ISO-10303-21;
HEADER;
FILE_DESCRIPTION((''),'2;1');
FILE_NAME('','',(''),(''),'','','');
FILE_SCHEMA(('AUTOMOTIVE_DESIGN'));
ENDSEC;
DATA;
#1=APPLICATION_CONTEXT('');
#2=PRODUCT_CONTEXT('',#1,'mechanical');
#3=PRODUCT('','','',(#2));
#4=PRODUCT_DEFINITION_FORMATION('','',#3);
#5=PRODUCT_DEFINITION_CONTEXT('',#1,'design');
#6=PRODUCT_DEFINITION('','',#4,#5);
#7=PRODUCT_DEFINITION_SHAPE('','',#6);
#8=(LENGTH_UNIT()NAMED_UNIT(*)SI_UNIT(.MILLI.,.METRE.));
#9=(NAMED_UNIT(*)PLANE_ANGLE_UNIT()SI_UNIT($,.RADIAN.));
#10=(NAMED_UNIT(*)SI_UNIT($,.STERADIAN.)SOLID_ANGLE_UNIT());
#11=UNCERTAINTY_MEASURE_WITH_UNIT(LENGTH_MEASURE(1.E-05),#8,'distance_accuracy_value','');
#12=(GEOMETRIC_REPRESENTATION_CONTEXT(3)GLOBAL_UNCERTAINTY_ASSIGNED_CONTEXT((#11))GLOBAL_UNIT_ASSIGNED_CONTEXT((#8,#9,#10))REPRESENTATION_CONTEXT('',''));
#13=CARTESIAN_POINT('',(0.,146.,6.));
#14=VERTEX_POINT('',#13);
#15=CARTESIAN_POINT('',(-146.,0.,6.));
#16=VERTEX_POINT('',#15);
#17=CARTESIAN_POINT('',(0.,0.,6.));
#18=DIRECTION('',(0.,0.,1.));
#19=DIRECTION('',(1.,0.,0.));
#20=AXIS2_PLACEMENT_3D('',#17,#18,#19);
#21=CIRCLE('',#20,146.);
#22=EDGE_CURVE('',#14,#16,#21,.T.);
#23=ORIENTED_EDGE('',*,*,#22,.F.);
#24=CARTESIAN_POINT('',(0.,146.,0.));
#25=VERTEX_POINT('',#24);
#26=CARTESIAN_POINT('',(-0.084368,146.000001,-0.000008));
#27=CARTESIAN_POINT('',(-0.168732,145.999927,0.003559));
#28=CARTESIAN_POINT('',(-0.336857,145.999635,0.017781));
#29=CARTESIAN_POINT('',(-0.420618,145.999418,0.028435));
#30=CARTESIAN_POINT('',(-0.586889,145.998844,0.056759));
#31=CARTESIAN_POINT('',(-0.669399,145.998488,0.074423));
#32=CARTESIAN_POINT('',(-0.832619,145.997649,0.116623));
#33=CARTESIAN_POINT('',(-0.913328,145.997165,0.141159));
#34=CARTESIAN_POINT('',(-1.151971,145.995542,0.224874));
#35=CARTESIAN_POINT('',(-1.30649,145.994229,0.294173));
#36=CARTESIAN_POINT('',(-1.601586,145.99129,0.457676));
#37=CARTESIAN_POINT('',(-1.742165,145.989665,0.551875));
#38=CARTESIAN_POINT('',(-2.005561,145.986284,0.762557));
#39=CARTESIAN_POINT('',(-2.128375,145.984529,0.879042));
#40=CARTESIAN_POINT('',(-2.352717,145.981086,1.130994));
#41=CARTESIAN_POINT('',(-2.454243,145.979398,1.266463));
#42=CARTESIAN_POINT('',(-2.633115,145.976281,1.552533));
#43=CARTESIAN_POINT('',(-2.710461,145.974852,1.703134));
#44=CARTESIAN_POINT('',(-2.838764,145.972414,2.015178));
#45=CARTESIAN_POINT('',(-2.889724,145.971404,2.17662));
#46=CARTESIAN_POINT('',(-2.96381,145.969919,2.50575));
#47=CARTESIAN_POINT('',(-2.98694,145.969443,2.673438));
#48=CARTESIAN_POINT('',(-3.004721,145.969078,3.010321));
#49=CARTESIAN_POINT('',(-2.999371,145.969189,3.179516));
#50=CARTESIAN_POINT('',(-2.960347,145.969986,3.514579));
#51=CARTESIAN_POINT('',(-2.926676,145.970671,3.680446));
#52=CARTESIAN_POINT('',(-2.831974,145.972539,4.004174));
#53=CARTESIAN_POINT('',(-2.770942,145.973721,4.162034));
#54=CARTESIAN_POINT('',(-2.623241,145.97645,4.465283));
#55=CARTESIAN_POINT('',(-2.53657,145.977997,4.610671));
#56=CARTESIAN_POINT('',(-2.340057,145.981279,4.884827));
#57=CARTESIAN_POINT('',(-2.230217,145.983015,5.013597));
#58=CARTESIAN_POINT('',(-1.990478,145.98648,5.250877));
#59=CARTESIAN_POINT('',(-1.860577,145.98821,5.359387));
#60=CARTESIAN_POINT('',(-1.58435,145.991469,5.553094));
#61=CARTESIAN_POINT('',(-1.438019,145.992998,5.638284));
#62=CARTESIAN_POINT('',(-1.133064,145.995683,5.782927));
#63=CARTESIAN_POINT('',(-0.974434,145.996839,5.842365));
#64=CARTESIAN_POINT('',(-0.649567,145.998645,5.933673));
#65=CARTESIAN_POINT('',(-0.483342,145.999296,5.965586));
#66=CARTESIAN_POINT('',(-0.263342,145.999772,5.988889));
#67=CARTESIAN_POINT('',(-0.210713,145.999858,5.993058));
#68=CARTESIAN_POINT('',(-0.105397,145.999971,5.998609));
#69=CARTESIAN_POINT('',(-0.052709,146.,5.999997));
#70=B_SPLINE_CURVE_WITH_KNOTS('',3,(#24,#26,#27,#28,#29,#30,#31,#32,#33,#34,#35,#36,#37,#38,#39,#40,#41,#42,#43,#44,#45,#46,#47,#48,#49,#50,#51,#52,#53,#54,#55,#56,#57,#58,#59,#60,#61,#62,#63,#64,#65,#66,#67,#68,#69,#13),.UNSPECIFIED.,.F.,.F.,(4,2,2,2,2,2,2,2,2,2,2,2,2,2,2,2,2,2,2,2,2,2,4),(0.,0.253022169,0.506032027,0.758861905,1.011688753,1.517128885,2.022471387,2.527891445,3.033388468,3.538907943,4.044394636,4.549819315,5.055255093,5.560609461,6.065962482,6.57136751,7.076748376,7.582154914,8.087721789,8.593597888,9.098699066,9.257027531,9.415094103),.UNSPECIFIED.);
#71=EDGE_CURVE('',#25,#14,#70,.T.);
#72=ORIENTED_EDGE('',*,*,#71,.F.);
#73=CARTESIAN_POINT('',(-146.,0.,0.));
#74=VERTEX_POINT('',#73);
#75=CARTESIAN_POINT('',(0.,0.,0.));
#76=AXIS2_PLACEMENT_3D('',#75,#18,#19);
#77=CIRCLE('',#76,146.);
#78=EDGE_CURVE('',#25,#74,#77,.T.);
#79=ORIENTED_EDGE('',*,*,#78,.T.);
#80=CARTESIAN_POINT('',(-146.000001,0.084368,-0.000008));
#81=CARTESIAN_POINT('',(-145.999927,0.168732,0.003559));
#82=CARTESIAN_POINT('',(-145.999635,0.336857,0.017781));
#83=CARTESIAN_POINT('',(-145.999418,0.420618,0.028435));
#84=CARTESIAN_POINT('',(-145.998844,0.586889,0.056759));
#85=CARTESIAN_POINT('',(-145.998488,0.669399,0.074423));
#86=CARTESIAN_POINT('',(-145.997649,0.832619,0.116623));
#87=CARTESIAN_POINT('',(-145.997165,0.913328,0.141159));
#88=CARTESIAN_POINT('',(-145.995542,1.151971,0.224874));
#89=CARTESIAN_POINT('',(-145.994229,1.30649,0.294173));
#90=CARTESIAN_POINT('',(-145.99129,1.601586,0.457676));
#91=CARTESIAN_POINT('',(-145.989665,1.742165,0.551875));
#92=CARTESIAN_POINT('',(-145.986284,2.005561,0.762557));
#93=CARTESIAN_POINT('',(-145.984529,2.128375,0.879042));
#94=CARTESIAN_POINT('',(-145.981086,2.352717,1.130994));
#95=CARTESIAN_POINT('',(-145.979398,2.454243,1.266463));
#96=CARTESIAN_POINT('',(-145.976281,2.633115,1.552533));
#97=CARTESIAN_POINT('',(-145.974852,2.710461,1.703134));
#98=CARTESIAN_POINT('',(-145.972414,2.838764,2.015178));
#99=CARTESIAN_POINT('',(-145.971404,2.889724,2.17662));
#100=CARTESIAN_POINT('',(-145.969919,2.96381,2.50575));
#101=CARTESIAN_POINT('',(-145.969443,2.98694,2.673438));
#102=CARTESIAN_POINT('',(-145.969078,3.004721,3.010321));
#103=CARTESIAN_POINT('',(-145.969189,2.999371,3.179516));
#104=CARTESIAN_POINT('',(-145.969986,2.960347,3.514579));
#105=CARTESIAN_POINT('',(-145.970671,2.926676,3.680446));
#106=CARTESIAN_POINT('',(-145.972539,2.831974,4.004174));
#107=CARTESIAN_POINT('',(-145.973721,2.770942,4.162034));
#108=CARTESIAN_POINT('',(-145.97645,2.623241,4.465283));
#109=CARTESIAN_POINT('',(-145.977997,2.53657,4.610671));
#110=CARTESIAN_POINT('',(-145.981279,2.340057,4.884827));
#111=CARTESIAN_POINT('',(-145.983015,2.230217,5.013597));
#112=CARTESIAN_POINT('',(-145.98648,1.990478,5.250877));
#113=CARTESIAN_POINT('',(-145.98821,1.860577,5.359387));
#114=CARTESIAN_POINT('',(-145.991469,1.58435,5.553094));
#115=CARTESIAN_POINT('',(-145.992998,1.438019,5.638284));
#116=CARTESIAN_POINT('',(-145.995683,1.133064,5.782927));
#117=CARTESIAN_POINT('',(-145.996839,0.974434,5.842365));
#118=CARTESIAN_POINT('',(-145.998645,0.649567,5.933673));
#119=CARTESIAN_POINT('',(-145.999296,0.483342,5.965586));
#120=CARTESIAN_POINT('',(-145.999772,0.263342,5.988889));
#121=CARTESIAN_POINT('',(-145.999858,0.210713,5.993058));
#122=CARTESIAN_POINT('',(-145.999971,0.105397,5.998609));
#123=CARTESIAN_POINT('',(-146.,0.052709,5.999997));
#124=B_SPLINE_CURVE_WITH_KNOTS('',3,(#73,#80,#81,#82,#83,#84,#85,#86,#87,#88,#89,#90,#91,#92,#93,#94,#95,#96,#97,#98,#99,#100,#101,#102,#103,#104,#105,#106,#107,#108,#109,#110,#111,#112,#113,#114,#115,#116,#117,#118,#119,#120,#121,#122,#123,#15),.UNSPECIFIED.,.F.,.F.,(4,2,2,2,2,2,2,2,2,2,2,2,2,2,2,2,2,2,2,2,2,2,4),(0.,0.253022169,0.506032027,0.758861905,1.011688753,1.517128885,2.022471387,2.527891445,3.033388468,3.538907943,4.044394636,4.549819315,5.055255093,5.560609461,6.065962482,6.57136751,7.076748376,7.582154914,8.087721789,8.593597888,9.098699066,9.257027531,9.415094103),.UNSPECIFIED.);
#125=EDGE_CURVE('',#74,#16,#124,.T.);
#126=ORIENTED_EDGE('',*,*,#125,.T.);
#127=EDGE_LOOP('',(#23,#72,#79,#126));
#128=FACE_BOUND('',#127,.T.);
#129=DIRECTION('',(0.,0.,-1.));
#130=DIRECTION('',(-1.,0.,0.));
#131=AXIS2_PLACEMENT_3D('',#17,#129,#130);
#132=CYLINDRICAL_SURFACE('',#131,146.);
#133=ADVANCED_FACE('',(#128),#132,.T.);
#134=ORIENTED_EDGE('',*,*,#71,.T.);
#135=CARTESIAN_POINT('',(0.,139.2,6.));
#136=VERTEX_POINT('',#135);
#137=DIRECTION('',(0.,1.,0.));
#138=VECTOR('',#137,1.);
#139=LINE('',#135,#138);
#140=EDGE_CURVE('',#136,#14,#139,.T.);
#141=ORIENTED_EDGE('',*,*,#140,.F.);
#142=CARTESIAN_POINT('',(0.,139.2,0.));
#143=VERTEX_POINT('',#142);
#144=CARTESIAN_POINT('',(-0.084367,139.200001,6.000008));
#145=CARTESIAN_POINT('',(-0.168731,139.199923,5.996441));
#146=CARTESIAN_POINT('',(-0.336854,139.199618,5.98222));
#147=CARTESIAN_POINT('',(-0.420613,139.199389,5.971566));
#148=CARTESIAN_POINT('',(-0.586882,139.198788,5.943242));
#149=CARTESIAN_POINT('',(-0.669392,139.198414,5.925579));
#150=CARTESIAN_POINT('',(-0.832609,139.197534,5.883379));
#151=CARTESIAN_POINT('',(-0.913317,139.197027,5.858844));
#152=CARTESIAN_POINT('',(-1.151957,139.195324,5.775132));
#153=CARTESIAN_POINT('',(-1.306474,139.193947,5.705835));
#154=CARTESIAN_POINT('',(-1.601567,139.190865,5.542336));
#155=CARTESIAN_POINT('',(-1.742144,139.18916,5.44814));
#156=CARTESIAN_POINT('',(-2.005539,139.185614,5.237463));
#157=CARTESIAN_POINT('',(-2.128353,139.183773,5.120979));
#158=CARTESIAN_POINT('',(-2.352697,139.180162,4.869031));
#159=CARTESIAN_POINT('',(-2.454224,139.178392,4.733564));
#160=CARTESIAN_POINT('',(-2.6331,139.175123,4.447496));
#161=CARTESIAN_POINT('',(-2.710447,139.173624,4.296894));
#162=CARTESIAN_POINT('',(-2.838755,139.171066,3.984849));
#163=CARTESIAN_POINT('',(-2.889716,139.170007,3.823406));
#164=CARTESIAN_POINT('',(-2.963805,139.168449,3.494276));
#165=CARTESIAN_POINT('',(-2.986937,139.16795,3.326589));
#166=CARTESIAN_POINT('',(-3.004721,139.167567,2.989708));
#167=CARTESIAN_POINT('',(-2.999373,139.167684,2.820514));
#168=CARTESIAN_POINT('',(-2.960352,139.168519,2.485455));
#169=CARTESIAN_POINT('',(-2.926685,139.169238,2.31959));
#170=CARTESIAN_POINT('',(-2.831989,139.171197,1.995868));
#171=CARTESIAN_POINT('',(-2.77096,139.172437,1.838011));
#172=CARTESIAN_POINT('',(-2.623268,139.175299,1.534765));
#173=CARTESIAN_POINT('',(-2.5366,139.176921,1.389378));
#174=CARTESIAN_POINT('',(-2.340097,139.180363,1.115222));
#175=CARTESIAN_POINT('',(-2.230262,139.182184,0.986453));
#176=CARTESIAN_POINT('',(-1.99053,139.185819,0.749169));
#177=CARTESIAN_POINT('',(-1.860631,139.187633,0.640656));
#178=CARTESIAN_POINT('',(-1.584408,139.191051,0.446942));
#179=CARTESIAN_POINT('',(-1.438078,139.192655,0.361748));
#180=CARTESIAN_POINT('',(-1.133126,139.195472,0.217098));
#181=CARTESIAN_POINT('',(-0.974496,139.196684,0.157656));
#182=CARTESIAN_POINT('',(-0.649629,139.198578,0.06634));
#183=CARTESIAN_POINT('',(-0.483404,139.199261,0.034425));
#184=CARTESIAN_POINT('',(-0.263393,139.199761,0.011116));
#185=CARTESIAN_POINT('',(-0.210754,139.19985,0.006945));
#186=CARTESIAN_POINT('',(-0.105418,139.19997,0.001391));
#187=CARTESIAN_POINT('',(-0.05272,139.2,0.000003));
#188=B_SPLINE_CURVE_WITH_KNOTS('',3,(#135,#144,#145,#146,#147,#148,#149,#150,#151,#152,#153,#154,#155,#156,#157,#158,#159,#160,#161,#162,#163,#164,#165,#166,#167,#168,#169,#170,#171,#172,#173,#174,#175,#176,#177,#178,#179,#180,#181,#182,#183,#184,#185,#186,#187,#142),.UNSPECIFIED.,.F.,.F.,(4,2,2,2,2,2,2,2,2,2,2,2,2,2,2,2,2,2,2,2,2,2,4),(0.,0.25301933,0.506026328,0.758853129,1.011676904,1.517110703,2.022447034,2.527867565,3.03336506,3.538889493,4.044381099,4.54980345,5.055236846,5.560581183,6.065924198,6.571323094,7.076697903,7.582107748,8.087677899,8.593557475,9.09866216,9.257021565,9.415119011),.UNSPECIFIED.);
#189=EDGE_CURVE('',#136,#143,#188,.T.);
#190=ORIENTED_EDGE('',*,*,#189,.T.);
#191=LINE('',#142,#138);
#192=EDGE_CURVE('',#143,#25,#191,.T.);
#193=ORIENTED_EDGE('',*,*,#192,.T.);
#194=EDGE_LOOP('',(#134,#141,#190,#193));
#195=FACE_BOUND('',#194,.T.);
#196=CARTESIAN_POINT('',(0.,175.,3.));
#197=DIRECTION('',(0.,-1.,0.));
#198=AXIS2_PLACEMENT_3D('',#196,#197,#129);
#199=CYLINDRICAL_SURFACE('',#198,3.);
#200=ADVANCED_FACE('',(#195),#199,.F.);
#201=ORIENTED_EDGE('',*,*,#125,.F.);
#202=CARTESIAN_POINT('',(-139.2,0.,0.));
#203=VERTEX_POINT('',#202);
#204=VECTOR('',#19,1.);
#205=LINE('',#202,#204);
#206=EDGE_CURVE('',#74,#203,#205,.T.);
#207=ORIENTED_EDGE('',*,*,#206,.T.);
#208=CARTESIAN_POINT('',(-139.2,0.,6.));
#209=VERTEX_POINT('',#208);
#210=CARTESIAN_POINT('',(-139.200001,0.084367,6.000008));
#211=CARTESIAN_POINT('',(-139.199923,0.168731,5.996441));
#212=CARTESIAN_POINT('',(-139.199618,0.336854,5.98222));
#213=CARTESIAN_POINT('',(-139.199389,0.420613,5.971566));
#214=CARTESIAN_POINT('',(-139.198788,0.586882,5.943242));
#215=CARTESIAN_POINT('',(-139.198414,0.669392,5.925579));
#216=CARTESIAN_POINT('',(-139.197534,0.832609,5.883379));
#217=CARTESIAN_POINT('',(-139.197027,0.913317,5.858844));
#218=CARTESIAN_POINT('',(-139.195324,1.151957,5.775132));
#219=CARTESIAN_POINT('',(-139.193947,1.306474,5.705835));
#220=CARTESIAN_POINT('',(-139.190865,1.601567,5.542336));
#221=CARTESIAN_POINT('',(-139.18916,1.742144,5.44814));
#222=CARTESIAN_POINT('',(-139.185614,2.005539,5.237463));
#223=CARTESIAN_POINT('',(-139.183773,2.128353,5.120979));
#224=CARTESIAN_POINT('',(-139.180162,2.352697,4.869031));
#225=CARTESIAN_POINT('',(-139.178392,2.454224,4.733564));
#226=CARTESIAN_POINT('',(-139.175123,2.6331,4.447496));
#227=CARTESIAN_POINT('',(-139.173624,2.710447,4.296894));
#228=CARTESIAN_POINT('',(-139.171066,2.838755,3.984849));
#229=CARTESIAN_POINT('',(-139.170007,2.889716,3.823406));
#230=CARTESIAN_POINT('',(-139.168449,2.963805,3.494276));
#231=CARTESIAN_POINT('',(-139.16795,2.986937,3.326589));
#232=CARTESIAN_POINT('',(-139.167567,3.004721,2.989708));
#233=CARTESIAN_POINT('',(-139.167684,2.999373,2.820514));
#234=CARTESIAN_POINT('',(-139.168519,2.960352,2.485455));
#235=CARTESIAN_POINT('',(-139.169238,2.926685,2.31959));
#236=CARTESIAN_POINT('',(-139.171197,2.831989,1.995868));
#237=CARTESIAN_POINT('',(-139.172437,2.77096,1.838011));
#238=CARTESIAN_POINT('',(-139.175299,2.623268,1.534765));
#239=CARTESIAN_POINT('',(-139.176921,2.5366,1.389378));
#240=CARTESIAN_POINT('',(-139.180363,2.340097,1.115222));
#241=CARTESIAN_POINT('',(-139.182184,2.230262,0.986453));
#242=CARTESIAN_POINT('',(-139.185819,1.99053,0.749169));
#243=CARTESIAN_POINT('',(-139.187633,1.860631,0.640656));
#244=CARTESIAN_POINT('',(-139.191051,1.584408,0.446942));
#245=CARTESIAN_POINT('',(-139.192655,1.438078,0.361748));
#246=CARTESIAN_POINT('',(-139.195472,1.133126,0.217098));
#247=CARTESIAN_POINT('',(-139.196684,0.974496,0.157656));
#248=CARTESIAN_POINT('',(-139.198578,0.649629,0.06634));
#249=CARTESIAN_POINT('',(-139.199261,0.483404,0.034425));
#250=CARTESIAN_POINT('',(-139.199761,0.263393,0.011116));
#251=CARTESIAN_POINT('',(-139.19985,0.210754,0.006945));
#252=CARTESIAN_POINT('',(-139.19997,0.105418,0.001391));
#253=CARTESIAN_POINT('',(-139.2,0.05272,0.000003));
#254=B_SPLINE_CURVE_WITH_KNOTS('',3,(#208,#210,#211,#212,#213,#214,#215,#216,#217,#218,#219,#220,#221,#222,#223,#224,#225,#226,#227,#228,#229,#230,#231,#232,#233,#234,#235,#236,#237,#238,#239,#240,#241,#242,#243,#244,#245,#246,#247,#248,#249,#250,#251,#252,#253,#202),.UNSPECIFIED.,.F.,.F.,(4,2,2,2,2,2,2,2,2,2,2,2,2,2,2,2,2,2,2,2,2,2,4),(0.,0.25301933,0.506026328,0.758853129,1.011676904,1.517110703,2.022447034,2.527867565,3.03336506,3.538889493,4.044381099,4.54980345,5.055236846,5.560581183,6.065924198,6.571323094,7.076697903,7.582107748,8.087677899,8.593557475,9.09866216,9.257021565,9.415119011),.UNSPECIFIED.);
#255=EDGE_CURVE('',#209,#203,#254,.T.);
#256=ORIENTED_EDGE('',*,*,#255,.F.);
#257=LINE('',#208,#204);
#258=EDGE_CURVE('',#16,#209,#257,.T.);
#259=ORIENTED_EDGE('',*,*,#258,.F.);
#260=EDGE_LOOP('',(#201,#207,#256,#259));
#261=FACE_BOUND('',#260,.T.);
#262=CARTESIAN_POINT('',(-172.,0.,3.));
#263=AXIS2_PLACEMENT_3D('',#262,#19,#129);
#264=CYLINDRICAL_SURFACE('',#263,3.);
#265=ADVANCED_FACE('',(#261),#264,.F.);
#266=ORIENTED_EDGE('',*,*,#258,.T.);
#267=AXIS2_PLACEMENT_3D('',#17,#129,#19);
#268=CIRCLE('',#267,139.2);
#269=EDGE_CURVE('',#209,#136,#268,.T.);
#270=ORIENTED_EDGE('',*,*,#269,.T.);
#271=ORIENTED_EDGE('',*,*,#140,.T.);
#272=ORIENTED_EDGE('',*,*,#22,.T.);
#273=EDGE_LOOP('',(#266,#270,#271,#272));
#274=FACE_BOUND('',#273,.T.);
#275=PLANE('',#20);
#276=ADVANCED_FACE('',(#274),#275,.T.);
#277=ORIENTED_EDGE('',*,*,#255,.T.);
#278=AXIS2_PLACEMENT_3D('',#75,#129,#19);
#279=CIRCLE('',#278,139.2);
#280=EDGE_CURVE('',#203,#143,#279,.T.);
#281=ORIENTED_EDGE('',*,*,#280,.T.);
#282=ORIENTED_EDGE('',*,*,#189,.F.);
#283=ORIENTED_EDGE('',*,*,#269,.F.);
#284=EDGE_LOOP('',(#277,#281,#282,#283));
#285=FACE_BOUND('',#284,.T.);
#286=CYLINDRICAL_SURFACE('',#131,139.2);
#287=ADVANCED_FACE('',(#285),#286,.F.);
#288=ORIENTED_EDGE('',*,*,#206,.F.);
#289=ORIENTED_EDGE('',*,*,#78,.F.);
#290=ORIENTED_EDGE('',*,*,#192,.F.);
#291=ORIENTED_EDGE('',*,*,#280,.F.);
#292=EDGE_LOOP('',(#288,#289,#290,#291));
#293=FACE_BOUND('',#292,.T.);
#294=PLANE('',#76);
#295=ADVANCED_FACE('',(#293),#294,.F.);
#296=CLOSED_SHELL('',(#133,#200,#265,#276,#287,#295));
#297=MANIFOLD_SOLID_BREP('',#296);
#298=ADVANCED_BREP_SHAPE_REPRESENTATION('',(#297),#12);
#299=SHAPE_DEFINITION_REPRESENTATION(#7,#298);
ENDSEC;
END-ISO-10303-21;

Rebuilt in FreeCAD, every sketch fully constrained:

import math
import FreeCAD as App
import Part
import Sketcher

V = App.Vector

doc = App.newDocument("Part")
params = doc.addObject("Spreadsheet::Sheet", "Params")
for row, (alias, value) in enumerate([
    ("sketch1_radius", "146 mm"),
    ("sketch1_radius2", "139.2 mm"),
    ("pad1_length", "6 mm"),
    ("sketch2_diameter", "6 mm"),
    ("pocket1_length", "172 mm"),
    ("sketch3_diameter", "6 mm"),
    ("pocket2_length", "175 mm"),
], start=1):
    params.set(f"A{row}", alias)
    params.set(f"B{row}", "=" + value)
    params.setAlias(f"B{row}", alias)

body = doc.addObject("PartDesign::Body", "Body")

sketch1 = body.newObject("Sketcher::SketchObject", "Sketch")
sketch1.AttachmentSupport = (doc.getObject("XY_Plane"), [""])
sketch1.MapMode = "FlatFace"
sketch1.addGeometry(Part.LineSegment(V(0, 139.2, 0), V(0, 146, 0)), False)
sketch1.addGeometry(Part.ArcOfCircle(Part.Circle(V(0, 0, 0), V(0, 0, 1), 146), math.radians(90), math.radians(180)), False)
sketch1.addGeometry(Part.LineSegment(V(-146, 0, 0), V(-139.2, 0, 0)), False)
sketch1.addGeometry(Part.ArcOfCircle(Part.Circle(V(0, 0, 0), V(0, 0, 1), 139.2), math.radians(90), math.radians(180)), False)
sketch1.addConstraint(Sketcher.Constraint("Coincident", 0, 2, 1, 1))
sketch1.addConstraint(Sketcher.Constraint("Coincident", 1, 2, 2, 1))
sketch1.addConstraint(Sketcher.Constraint("Coincident", 2, 2, 3, 2))
sketch1.addConstraint(Sketcher.Constraint("Coincident", 3, 1, 0, 1))
sketch1.addConstraint(Sketcher.Constraint("Vertical", 0))
sketch1.addConstraint(Sketcher.Constraint("Horizontal", 2))
sketch1.addConstraint(Sketcher.Constraint("Coincident", 1, 3, -1, 1))
sketch1.addConstraint(Sketcher.Constraint("Coincident", 3, 3, -1, 1))
sketch1.addConstraint(Sketcher.Constraint("PointOnObject", 0, 2, -2))
sketch1.addConstraint(Sketcher.Constraint("PointOnObject", 1, 2, -1))
sketch1.addConstraint(Sketcher.Constraint("Radius", 1, 146.0))
sketch1.addConstraint(Sketcher.Constraint("Radius", 3, 139.2))
sketch1.setExpression("Constraints[10]", "Params.sketch1_radius")
sketch1.setExpression("Constraints[11]", "Params.sketch1_radius2")
pad1 = body.newObject("PartDesign::Pad", "Pad")
pad1.Profile = sketch1
pad1.setExpression("Length", "Params.pad1_length")

sketch2 = body.newObject("Sketcher::SketchObject", "Sketch001")
sketch2.AttachmentSupport = (doc.getObject("YZ_Plane"), [""])
sketch2.MapMode = "FlatFace"
sketch2.addGeometry(Part.Circle(V(0, 3, 0), V(0, 0, 1), 3), False)
sketch2.addConstraint(Sketcher.Constraint("PointOnObject", 0, 3, -2))
sketch2.addConstraint(Sketcher.Constraint("Diameter", 0, 6.0))
sketch2.addConstraint(Sketcher.Constraint("DistanceY", -1, 1, 0, 3, 3.0))
sketch2.setExpression("Constraints[1]", "Params.sketch2_diameter")
pocket1 = body.newObject("PartDesign::Pocket", "Pocket")
pocket1.Profile = sketch2
pocket1.setExpression("Length", "Params.pocket1_length")

sketch3 = body.newObject("Sketcher::SketchObject", "Sketch002")
sketch3.AttachmentSupport = (doc.getObject("XZ_Plane"), [""])
sketch3.MapMode = "FlatFace"
sketch3.addGeometry(Part.Circle(V(0, 3, 0), V(0, 0, 1), 3), False)
sketch3.addConstraint(Sketcher.Constraint("PointOnObject", 0, 3, -2))
sketch3.addConstraint(Sketcher.Constraint("Diameter", 0, 6.0))
sketch3.addConstraint(Sketcher.Constraint("DistanceY", -1, 1, 0, 3, 3.0))
sketch3.setExpression("Constraints[1]", "Params.sketch3_diameter")
pocket2 = body.newObject("PartDesign::Pocket", "Pocket001")
pocket2.Profile = sketch3
pocket2.setExpression("Length", "Params.pocket2_length")

doc.recompute()
